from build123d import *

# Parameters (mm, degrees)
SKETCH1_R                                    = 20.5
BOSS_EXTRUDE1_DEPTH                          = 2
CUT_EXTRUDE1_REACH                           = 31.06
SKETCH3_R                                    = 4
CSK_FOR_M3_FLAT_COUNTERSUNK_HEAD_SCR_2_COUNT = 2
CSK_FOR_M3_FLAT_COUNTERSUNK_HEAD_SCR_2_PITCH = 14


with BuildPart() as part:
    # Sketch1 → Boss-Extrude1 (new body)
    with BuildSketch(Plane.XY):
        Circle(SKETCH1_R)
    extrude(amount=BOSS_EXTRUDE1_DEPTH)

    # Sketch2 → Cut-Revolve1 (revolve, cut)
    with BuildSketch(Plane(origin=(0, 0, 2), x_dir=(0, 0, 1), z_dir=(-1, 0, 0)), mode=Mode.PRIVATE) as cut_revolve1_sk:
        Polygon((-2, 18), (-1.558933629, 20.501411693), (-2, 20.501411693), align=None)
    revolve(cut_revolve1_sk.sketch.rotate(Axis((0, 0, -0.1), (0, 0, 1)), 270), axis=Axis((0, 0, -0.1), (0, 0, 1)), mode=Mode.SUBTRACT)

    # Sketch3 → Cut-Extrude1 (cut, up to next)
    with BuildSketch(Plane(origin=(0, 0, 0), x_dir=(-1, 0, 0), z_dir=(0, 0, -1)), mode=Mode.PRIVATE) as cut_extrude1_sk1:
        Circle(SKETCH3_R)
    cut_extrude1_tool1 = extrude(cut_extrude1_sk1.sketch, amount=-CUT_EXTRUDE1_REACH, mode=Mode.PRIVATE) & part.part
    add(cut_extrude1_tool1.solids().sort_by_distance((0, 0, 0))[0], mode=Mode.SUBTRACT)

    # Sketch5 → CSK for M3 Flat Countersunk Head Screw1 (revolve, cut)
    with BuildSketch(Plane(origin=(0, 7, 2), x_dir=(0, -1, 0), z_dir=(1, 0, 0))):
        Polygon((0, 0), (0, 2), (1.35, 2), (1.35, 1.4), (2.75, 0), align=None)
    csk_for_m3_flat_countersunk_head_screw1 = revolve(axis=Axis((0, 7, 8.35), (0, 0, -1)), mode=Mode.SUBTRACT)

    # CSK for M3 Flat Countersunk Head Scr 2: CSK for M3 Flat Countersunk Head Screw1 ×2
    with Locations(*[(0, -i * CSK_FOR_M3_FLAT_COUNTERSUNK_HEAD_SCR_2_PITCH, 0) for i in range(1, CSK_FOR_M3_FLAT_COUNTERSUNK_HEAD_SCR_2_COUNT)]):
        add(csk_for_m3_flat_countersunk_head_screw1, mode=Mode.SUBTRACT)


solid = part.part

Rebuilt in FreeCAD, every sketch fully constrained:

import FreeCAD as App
import Part
import Sketcher

V = App.Vector
Q = App.Units.Quantity

doc = App.newDocument("Part")
body = doc.addObject("PartDesign::Body", "Body")

# Sketch on XY plane
sketch1 = body.newObject("Sketcher::SketchObject", "Sketch")
sketch1.AttachmentSupport = (doc.getObject("XY_Plane"), [""])
sketch1.MapMode = "FlatFace"
sketch1.addGeometry(Part.Circle(V(0, 0, 0), V(0, 0, 1), 20), False)
sketch1.addConstraint(Sketcher.Constraint("Coincident", 0, 3, -1, 1))
sketch1.addConstraint(Sketcher.Constraint("Diameter", 0, 41.0))
pad1 = body.newObject("PartDesign::Pad", "Pad")
pad1.Profile = sketch1
pad1.Length = 2

# Sketch on YZ plane
sketch2 = body.newObject("Sketcher::SketchObject", "Sketch001")
sketch2.AttachmentSupport = (doc.getObject("YZ_Plane"), [""])
sketch2.MapMode = "FlatFace"
sketch2.addGeometry(Part.LineSegment(V(18, 0, 0), V(20.5, 0.44, 0)), False)
sketch2.addGeometry(Part.LineSegment(V(20.5, 0.44, 0), V(20.5, 0, 0)), False)
sketch2.addGeometry(Part.LineSegment(V(20.5, 0, 0), V(18, 0, 0)), False)
sketch2.addConstraint(Sketcher.Constraint("Coincident", 0, 2, 1, 1))
sketch2.addConstraint(Sketcher.Constraint("Coincident", 1, 2, 2, 1))
sketch2.addConstraint(Sketcher.Constraint("Coincident", 2, 2, 0, 1))
sketch2.addConstraint(Sketcher.Constraint("Vertical", 1))
sketch2.addConstraint(Sketcher.Constraint("Horizontal", 2))
sketch2.addConstraint(Sketcher.Constraint("PointOnObject", 1, 2, -1))
sketch2.addConstraint(Sketcher.Constraint("Angle", 0, Q("10 deg")))
sketch2.addConstraint(Sketcher.Constraint("DistanceX", -1, 1, 2, 2, 18.0))
sketch2.addConstraint(Sketcher.Constraint("Distance", 0, 2.54))
groove = body.newObject("PartDesign::Groove", "Groove")
groove.Profile = sketch2
groove.ReferenceAxis = (sketch2, ["V_Axis"])
groove.Angle = 360

# Sketch on XY plane
sketch3 = body.newObject("Sketcher::SketchObject", "Sketch002")
sketch3.AttachmentSupport = (doc.getObject("XY_Plane"), [""])
sketch3.MapMode = "FlatFace"
sketch3.addGeometry(Part.Circle(V(0, 0, 0), V(0, 0, 1), 4), False)
sketch3.addConstraint(Sketcher.Constraint("Coincident", 0, 3, -1, 1))
sketch3.addConstraint(Sketcher.Constraint("Diameter", 0, 8.0))
pocket1 = body.newObject("PartDesign::Pocket", "Pocket")
pocket1.Profile = sketch3
pocket1.Type = "UpToFirst"
pocket1.Reversed = True

# Sketch on YZ plane
sketch4 = body.newObject("Sketcher::SketchObject", "Sketch003")
sketch4.AttachmentSupport = (doc.getObject("YZ_Plane"), [""])
sketch4.MapMode = "FlatFace"
sketch4.addGeometry(Part.LineSegment(V(7, 0, 0), V(7, 2, 0)), False)
sketch4.addGeometry(Part.LineSegment(V(7, 2, 0), V(4.2, 2, 0)), False)
sketch4.addGeometry(Part.LineSegment(V(4.2, 2, 0), V(5.7, 0.6, 0)), False)
sketch4.addGeometry(Part.LineSegment(V(5.7, 0.6, 0), V(5.7, 0, 0)), False)
sketch4.addGeometry(Part.LineSegment(V(5.7, 0, 0), V(7, 0, 0)), False)
sketch4.addGeometry(Part.LineSegment(V(7, 2, 0), V(7, 0, 0)), True)  # axis
sketch4.addConstraint(Sketcher.Constraint("Coincident", 0, 2, 1, 1))
sketch4.addConstraint(Sketcher.Constraint("Coincident", 1, 2, 2, 1))
sketch4.addConstraint(Sketcher.Constraint("Coincident", 2, 2, 3, 1))
sketch4.addConstraint(Sketcher.Constraint("Coincident", 3, 2, 4, 1))
sketch4.addConstraint(Sketcher.Constraint("Coincident", 4, 2, 0, 1))
sketch4.addConstraint(Sketcher.Constraint("Vertical", 0))
sketch4.addConstraint(Sketcher.Constraint("Horizontal", 1))
sketch4.addConstraint(Sketcher.Constraint("Vertical", 3))
sketch4.addConstraint(Sketcher.Constraint("Horizontal", 4))
sketch4.addConstraint(Sketcher.Constraint("Vertical", 5))
sketch4.addConstraint(Sketcher.Constraint("Coincident", 5, 1, 0, 2))
sketch4.addConstraint(Sketcher.Constraint("PointOnObject", 3, 2, -1))
sketch4.addConstraint(Sketcher.Constraint("PointOnObject", 5, 2, -1))
sketch4.addConstraint(Sketcher.Constraint("DistanceY", 0, 1, 0, 2, 2.0))
sketch4.addConstraint(Sketcher.Constraint("Angle", 2, Q("-45 deg")))
sketch4.addConstraint(Sketcher.Constraint("DistanceY", 3, 2, 3, 1, 0.6))
sketch4.addConstraint(Sketcher.Constraint("DistanceX", -1, 1, 0, 2, 7.0))
sketch4.addConstraint(Sketcher.Constraint("DistanceX", 1, 2, 1, 1, 2.75))
groove2 = body.newObject("PartDesign::Groove", "Groove001")
groove2.Profile = sketch4
groove2.ReferenceAxis = (sketch4, ["Axis0"])
groove2.Angle = 360
doc.recompute()

linearpattern = body.newObject("PartDesign::LinearPattern", "LinearPattern")
linearpattern.Originals = [groove2]
linearpattern.Direction = (doc.getObject("Y_Axis"), [""])
linearpattern.Mode = "offset"
linearpattern.Offset = 14
linearpattern.Occurrences = 2
linearpattern.Reversed = True
body.Tip = linearpattern

doc.recompute()
